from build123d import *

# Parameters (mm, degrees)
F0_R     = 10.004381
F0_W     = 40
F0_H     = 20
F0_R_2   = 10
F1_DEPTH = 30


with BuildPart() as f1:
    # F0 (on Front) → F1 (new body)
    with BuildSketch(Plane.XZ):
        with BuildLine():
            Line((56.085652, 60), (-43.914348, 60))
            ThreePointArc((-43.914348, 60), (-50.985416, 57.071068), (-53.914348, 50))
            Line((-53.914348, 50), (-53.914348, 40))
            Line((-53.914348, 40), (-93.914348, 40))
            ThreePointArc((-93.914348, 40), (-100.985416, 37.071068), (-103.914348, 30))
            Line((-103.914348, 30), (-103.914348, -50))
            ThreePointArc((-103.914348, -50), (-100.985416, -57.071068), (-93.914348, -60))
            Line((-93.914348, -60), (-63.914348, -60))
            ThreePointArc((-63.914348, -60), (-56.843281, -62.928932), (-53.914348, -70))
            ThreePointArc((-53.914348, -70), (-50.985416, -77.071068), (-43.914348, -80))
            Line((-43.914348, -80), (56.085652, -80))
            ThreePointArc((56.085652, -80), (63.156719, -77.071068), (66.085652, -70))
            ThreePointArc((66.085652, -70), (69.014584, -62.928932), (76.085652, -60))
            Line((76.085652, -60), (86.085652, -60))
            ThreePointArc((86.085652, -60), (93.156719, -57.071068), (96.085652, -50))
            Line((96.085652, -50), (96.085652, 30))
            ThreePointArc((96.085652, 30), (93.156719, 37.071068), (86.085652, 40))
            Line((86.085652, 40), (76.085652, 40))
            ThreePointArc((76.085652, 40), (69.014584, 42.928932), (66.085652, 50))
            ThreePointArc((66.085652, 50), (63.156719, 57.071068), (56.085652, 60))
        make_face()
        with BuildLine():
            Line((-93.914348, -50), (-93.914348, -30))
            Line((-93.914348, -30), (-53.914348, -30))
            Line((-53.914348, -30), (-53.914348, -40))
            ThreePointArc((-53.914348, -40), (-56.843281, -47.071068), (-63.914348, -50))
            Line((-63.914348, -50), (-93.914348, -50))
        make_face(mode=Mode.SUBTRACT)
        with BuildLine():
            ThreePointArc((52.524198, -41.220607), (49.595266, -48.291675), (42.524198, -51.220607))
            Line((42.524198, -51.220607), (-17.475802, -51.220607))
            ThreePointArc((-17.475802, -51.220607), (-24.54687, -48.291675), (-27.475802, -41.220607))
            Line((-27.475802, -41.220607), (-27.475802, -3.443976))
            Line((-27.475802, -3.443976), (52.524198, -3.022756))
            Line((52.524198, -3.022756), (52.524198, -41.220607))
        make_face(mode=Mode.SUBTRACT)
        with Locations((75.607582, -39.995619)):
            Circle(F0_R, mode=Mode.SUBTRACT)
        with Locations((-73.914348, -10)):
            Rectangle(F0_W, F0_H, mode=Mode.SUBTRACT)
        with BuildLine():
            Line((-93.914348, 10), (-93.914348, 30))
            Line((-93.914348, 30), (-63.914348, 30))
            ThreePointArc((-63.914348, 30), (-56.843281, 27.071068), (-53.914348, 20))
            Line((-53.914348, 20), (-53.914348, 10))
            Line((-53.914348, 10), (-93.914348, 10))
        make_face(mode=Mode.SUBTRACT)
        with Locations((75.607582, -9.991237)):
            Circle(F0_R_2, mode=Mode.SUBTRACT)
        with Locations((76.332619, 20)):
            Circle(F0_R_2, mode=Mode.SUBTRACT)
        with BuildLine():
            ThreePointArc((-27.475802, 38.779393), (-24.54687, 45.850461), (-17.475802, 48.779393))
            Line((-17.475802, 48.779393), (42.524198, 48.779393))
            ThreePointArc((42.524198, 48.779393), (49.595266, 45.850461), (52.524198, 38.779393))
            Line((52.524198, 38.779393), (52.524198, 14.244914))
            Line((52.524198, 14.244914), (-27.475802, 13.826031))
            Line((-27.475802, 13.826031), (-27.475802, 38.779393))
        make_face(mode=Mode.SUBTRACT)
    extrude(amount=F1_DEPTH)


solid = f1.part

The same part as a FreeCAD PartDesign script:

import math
import FreeCAD as App
import Part
import Sketcher
from FreeCAD import Vector
Q = App.Units.Quantity


def add_polygon(sketch, points):
    """Adds a closed chain of lines whose ends are joined by coincident constraints."""
    first, n = sketch.GeometryCount, len(points)
    for a, b in zip(points, points[1:] + points[:1]):
        sketch.addGeometry(Part.LineSegment(App.Vector(*a, 0), App.Vector(*b, 0)), False)
    for i in range(n):
        sketch.addConstraint(Sketcher.Constraint("Coincident", first + i, 2, first + (i + 1) % n, 1))

doc = App.newDocument("Part")
body = doc.addObject("PartDesign::Body", "Body")

# Sketch on XZ plane
sketch1 = body.newObject("Sketcher::SketchObject", "Sketch")
sketch1.AttachmentSupport = (doc.getObject("XZ_Plane"), [""])
sketch1.MapMode = "FlatFace"
sketch1.addGeometry(Part.LineSegment(Vector(56.085652, 60, 0), Vector(-43.914348, 60, 0)), False)  # 0
sketch1.addGeometry(Part.ArcOfCircle(Part.Circle(Vector(-43.914349, 50.000001, 0), Vector(0, 0, 1), 9.999999), math.radians(89.999996), math.radians(180.000004)), False)  # 1
sketch1.addGeometry(Part.LineSegment(Vector(-53.914348, 50, 0), Vector(-53.914348, 40, 0)), False)  # 2
sketch1.addGeometry(Part.LineSegment(Vector(-53.914348, 40, 0), Vector(-93.914348, 40, 0)), False)  # 3
sketch1.addGeometry(Part.ArcOfCircle(Part.Circle(Vector(-93.914349, 30.000001, 0), Vector(0, 0, 1), 9.999999), math.radians(89.999996), math.radians(180.000004)), False)  # 4
sketch1.addGeometry(Part.LineSegment(Vector(-103.914348, 30, 0), Vector(-103.914348, -50, 0)), False)  # 5
sketch1.addGeometry(Part.ArcOfCircle(Part.Circle(Vector(-93.914349, -50.000001, 0), Vector(0, 0, 1), 9.999999), math.radians(179.999996), math.radians(270.000004)), False)  # 6
sketch1.addGeometry(Part.LineSegment(Vector(-93.914348, -60, 0), Vector(-63.914348, -60, 0)), False)  # 7
sketch1.addGeometry(Part.ArcOfCircle(Part.Circle(Vector(-63.914349, -70.000001, 0), Vector(0, 0, 1), 10.000001), math.radians(0.000006), math.radians(89.999994)), False)  # 8
sketch1.addGeometry(Part.ArcOfCircle(Part.Circle(Vector(-43.914349, -70.000001, 0), Vector(0, 0, 1), 9.999999), math.radians(179.999996), math.radians(270.000004)), False)  # 9
sketch1.addGeometry(Part.LineSegment(Vector(-43.914348, -80, 0), Vector(56.085652, -80, 0)), False)  # 10
sketch1.addGeometry(Part.ArcOfCircle(Part.Circle(Vector(56.085651, -69.999999, 0), Vector(0, 0, 1), 10.000001), math.radians(-89.999994), math.radians(-0.000006)), False)  # 11
sketch1.addGeometry(Part.ArcOfCircle(Part.Circle(Vector(76.085651, -69.999999, 0), Vector(0, 0, 1), 9.999999), math.radians(89.999996), math.radians(180.000004)), False)  # 12
sketch1.addGeometry(Part.LineSegment(Vector(76.085652, -60, 0), Vector(86.085652, -60, 0)), False)  # 13
sketch1.addGeometry(Part.ArcOfCircle(Part.Circle(Vector(86.085651, -49.999999, 0), Vector(0, 0, 1), 10.000001), math.radians(-89.999994), math.radians(-0.000006)), False)  # 14
sketch1.addGeometry(Part.LineSegment(Vector(96.085652, -50, 0), Vector(96.085652, 30, 0)), False)  # 15
sketch1.addGeometry(Part.ArcOfCircle(Part.Circle(Vector(86.085651, 29.999999, 0), Vector(0, 0, 1), 10.000001), math.radians(0.000006), math.radians(89.999994)), False)  # 16
sketch1.addGeometry(Part.LineSegment(Vector(86.085652, 40, 0), Vector(76.085652, 40, 0)), False)  # 17
sketch1.addGeometry(Part.ArcOfCircle(Part.Circle(Vector(76.085651, 49.999999, 0), Vector(0, 0, 1), 9.999999), math.radians(179.999996), math.radians(270.000004)), False)  # 18
sketch1.addGeometry(Part.ArcOfCircle(Part.Circle(Vector(56.085651, 49.999999, 0), Vector(0, 0, 1), 10.000001), math.radians(0.000006), math.radians(89.999994)), False)  # 19
sketch1.addGeometry(Part.LineSegment(Vector(-63.914348, -50, 0), Vector(-93.914348, -50, 0)), False)  # 20
sketch1.addGeometry(Part.LineSegment(Vector(-93.914348, -50, 0), Vector(-93.914348, -30, 0)), False)  # 21
sketch1.addGeometry(Part.LineSegment(Vector(-93.914348, -30, 0), Vector(-53.914348, -30, 0)), False)  # 22
sketch1.addGeometry(Part.LineSegment(Vector(-53.914348, -30, 0), Vector(-53.914348, -40, 0)), False)  # 23
sketch1.addGeometry(Part.ArcOfCircle(Part.Circle(Vector(-63.914349, -39.999999, 0), Vector(0, 0, 1), 10.000001), math.radians(-89.999994), math.radians(-0.000006)), False)  # 24
add_polygon(sketch1, [(-53.914348, -20), (-93.914348, -20), (-93.914348, 0), (-53.914348, 0)])  # lines 25-28
sketch1.addGeometry(Part.LineSegment(Vector(52.524198, -3.022756, 0), Vector(52.524198, -41.220607, 0)), False)  # 29
sketch1.addGeometry(Part.ArcOfCircle(Part.Circle(Vector(42.524199, -41.220608, 0), Vector(0, 0, 1), 9.999999), math.radians(-90.000004), math.radians(0.000004)), False)  # 30
sketch1.addGeometry(Part.LineSegment(Vector(42.524198, -51.220607, 0), Vector(-17.475802, -51.220607, 0)), False)  # 31
sketch1.addGeometry(Part.ArcOfCircle(Part.Circle(Vector(-17.475803, -41.220608, 0), Vector(0, 0, 1), 9.999999), math.radians(179.999996), math.radians(270.000004)), False)  # 32
sketch1.addGeometry(Part.LineSegment(Vector(-27.475802, -41.220607, 0), Vector(-27.475802, -3.443976, 0)), False)  # 33
sketch1.addGeometry(Part.LineSegment(Vector(-27.475802, -3.443976, 0), Vector(52.524198, -3.022756, 0)), False)  # 34
sketch1.addGeometry(Part.Circle(Vector(75.607582, -39.995619, 0), Vector(0, 0, 1), 10.004381), False)  # 35
sketch1.addGeometry(Part.Circle(Vector(75.607582, -9.991237, 0), Vector(0, 0, 1), 10), False)  # 36
sketch1.addGeometry(Part.LineSegment(Vector(-53.914348, 10, 0), Vector(-93.914348, 10, 0)), False)  # 37
sketch1.addGeometry(Part.LineSegment(Vector(-93.914348, 10, 0), Vector(-93.914348, 30, 0)), False)  # 38
sketch1.addGeometry(Part.LineSegment(Vector(-93.914348, 30, 0), Vector(-63.914348, 30, 0)), False)  # 39
sketch1.addGeometry(Part.ArcOfCircle(Part.Circle(Vector(-63.914349, 19.999999, 0), Vector(0, 0, 1), 10.000001), math.radians(0.000006), math.radians(89.999994)), False)  # 40
sketch1.addGeometry(Part.LineSegment(Vector(-53.914348, 20, 0), Vector(-53.914348, 10, 0)), False)  # 41
sketch1.addGeometry(Part.Circle(Vector(76.332619, 20, 0), Vector(0, 0, 1), 10), False)  # 42
sketch1.addGeometry(Part.LineSegment(Vector(-27.475802, 13.826031, 0), Vector(-27.475802, 38.779393, 0)), False)  # 43
sketch1.addGeometry(Part.ArcOfCircle(Part.Circle(Vector(-17.475803, 38.779394, 0), Vector(0, 0, 1), 9.999999), math.radians(89.999996), math.radians(180.000004)), False)  # 44
sketch1.addGeometry(Part.LineSegment(Vector(-17.475802, 48.779393, 0), Vector(42.524198, 48.779393, 0)), False)  # 45
sketch1.addGeometry(Part.ArcOfCircle(Part.Circle(Vector(42.524199, 38.779394, 0), Vector(0, 0, 1), 9.999999), math.radians(-0.000004), math.radians(90.000004)), False)  # 46
sketch1.addGeometry(Part.LineSegment(Vector(52.524198, 38.779393, 0), Vector(52.524198, 14.244914, 0)), False)  # 47
sketch1.addGeometry(Part.LineSegment(Vector(52.524198, 14.244914, 0), Vector(-27.475802, 13.826031, 0)), False)  # 48
sketch1.addConstraint([
    Sketcher.Constraint("Tangent", 0, 2, 1, 1),
    Sketcher.Constraint("Tangent", 1, 2, 2, 1),
    Sketcher.Constraint("Coincident", 2, 2, 3, 1),
    Sketcher.Constraint("Tangent", 3, 2, 4, 1),
    Sketcher.Constraint("Tangent", 4, 2, 5, 1),
    Sketcher.Constraint("Tangent", 5, 2, 6, 1),
    Sketcher.Constraint("Tangent", 6, 2, 7, 1),
    Sketcher.Constraint("Tangent", 7, 2, 8, 2),
    Sketcher.Constraint("Tangent", 8, 1, 9, 1),
    Sketcher.Constraint("Tangent", 9, 2, 10, 1),
    Sketcher.Constraint("Tangent", 10, 2, 11, 1),
    Sketcher.Constraint("Tangent", 11, 2, 12, 2),
    Sketcher.Constraint("Tangent", 12, 1, 13, 1),
    Sketcher.Constraint("Tangent", 13, 2, 14, 1),
    Sketcher.Constraint("Tangent", 14, 2, 15, 1),
    Sketcher.Constraint("Tangent", 15, 2, 16, 1),
    Sketcher.Constraint("Tangent", 16, 2, 17, 1),
    Sketcher.Constraint("Tangent", 17, 2, 18, 2),
    Sketcher.Constraint("Tangent", 18, 1, 19, 1),
    Sketcher.Constraint("Tangent", 19, 2, 0, 1),
    Sketcher.Constraint("Coincident", 20, 2, 21, 1),
    Sketcher.Constraint("Coincident", 21, 2, 22, 1),
    Sketcher.Constraint("Coincident", 22, 2, 23, 1),
    Sketcher.Constraint("Tangent", 23, 2, 24, 2),
    Sketcher.Constraint("Tangent", 24, 1, 20, 1),
    Sketcher.Constraint("Tangent", 29, 2, 30, 2),
    Sketcher.Constraint("Tangent", 30, 1, 31, 1),
    Sketcher.Constraint("Tangent", 31, 2, 32, 2),
    Sketcher.Constraint("Tangent", 32, 1, 33, 1),
    Sketcher.Constraint("Coincident", 33, 2, 34, 1),
    Sketcher.Constraint("Coincident", 34, 2, 29, 1),
    Sketcher.Constraint("Coincident", 37, 2, 38, 1),
    Sketcher.Constraint("Coincident", 38, 2, 39, 1),
    Sketcher.Constraint("Tangent", 39, 2, 40, 2),
    Sketcher.Constraint("Tangent", 40, 1, 41, 1),
    Sketcher.Constraint("Coincident", 41, 2, 37, 1),
    Sketcher.Constraint("Tangent", 43, 2, 44, 2),
    Sketcher.Constraint("Tangent", 44, 1, 45, 1),
    Sketcher.Constraint("Tangent", 45, 2, 46, 2),
    Sketcher.Constraint("Tangent", 46, 1, 47, 1),
    Sketcher.Constraint("Coincident", 47, 2, 48, 1),
    Sketcher.Constraint("Coincident", 48, 2, 43, 1),
    Sketcher.Constraint("Horizontal", 0),
    Sketcher.Constraint("Vertical", 2),
    Sketcher.Constraint("Horizontal", 3),
    Sketcher.Constraint("Vertical", 5),
    Sketcher.Constraint("Horizontal", 7),
    Sketcher.Constraint("Horizontal", 10),
    Sketcher.Constraint("Horizontal", 13),
    Sketcher.Constraint("Vertical", 15),
    Sketcher.Constraint("Horizontal", 17),
    Sketcher.Constraint("Horizontal", 20),
    Sketcher.Constraint("Vertical", 21),
    Sketcher.Constraint("Horizontal", 22),
    Sketcher.Constraint("Vertical", 23),
    Sketcher.Constraint("Horizontal", 25),
    Sketcher.Constraint("Vertical", 26),
    Sketcher.Constraint("Horizontal", 27),
    Sketcher.Constraint("Vertical", 28),
    Sketcher.Constraint("Vertical", 29),
    Sketcher.Constraint("Horizontal", 31),
    Sketcher.Constraint("Vertical", 33),
    Sketcher.Constraint("Horizontal", 37),
    Sketcher.Constraint("Vertical", 38),
    Sketcher.Constraint("Horizontal", 39),
    Sketcher.Constraint("Vertical", 41),
    Sketcher.Constraint("Vertical", 43),
    Sketcher.Constraint("Horizontal", 45),
    Sketcher.Constraint("Vertical", 47),
    Sketcher.Constraint("Coincident", 20, 2, 6, 3),
    Sketcher.Constraint("Coincident", 38, 2, 4, 3),
    Sketcher.Constraint("Equal", 1, 4),
    Sketcher.Constraint("Equal", 4, 6),
    Sketcher.Constraint("Equal", 6, 8),
    Sketcher.Constraint("Equal", 8, 9),
    Sketcher.Constraint("Equal", 9, 11),
    Sketcher.Constraint("Equal", 11, 12),
    Sketcher.Constraint("Equal", 12, 14),
    Sketcher.Constraint("Equal", 14, 16),
    Sketcher.Constraint("Equal", 16, 18),
    Sketcher.Constraint("Equal", 18, 19),
    Sketcher.Constraint("Equal", 19, 24),
    Sketcher.Constraint("Equal", 24, 30),
    Sketcher.Constraint("Equal", 30, 32),
    Sketcher.Constraint("Equal", 32, 36),
    Sketcher.Constraint("Equal", 36, 40),
    Sketcher.Constraint("Equal", 40, 42),
    Sketcher.Constraint("Equal", 42, 44),
    Sketcher.Constraint("Equal", 44, 46),
    Sketcher.Constraint("Symmetric", 2, 2, 23, 2, -1),
    Sketcher.Constraint("Symmetric", 28, 2, 40, 1, -1),
    Sketcher.Constraint("PointOnObject", 26, 2, -1),
    Sketcher.Constraint("Horizontal", 8, 3, 9, 3),
    Sketcher.Constraint("Horizontal", 11, 3, 12, 3),
    Sketcher.Constraint("Horizontal", 4, 3, 16, 3),
    Sketcher.Constraint("Horizontal", 1, 3, 18, 3),
    Sketcher.Constraint("Horizontal", 40, 3, 42, 3),
    Sketcher.Constraint("Vertical", 1, 3, 9, 3),
    Sketcher.Constraint("Vertical", 12, 3, 18, 3),
    Sketcher.Constraint("Vertical", 35, 3, 36, 3),
    Sketcher.Constraint("Vertical", 24, 3, 40, 3),
    Sketcher.Constraint("Vertical", 32, 3, 44, 3),
    Sketcher.Constraint("Vertical", 30, 3, 46, 3),
    Sketcher.Constraint("Vertical", 21, 2, 25, 2),
    Sketcher.Constraint("Equal", 17, 2),
    Sketcher.Constraint("Equal", 2, 23),
    Sketcher.Constraint("Equal", 21, 26),
    Sketcher.Constraint("Equal", 28, 38),
    Sketcher.Constraint("Diameter", 36, Q("20 mm")),
    Sketcher.Constraint("DistanceX", 0, 2, 0, 1, Q("100 mm")),
    Sketcher.Constraint("DistanceX", 3, 2, 3, 1, Q("40 mm")),
    Sketcher.Constraint("DistanceX", 31, 2, 31, 1, Q("60 mm")),
    Sketcher.Constraint("Angle", 48, Q("-179.7 deg")),
    Sketcher.Constraint("Diameter", 35, Q("20.008762 mm")),
    Sketcher.Constraint("DistanceY", 29, 2, 29, 1, Q("38.197851 mm")),
    Sketcher.Constraint("DistanceY", 33, 1, 33, 2, Q("37.776631 mm")),
    Sketcher.Constraint("DistanceY", 43, 1, 43, 2, Q("24.953362 mm")),
    Sketcher.Constraint("DistanceX", -1, 1, 30, 3, Q("42.524199 mm")),
    Sketcher.Constraint("DistanceX", 1, 3, -1, 1, Q("43.914349 mm")),
    Sketcher.Constraint("DistanceX", -1, 1, 35, 3, Q("75.607582 mm")),
    Sketcher.Constraint("DistanceY", 35, 3, -1, 1, Q("39.995619 mm")),
    Sketcher.Constraint("DistanceX", -1, 1, 42, 3, Q("76.332619 mm")),
    Sketcher.Constraint("DistanceY", -1, 1, 48, 2, Q("13.826031 mm")),
    Sketcher.Constraint("DistanceY", 30, 3, -1, 1, Q("41.220608 mm")),
    Sketcher.Constraint("DistanceY", 36, 3, -1, 1, Q("9.991237 mm")),
])
pad1 = body.newObject("PartDesign::Pad", "Pad")
pad1.Profile = sketch1
pad1.Length = 30

doc.recompute()
